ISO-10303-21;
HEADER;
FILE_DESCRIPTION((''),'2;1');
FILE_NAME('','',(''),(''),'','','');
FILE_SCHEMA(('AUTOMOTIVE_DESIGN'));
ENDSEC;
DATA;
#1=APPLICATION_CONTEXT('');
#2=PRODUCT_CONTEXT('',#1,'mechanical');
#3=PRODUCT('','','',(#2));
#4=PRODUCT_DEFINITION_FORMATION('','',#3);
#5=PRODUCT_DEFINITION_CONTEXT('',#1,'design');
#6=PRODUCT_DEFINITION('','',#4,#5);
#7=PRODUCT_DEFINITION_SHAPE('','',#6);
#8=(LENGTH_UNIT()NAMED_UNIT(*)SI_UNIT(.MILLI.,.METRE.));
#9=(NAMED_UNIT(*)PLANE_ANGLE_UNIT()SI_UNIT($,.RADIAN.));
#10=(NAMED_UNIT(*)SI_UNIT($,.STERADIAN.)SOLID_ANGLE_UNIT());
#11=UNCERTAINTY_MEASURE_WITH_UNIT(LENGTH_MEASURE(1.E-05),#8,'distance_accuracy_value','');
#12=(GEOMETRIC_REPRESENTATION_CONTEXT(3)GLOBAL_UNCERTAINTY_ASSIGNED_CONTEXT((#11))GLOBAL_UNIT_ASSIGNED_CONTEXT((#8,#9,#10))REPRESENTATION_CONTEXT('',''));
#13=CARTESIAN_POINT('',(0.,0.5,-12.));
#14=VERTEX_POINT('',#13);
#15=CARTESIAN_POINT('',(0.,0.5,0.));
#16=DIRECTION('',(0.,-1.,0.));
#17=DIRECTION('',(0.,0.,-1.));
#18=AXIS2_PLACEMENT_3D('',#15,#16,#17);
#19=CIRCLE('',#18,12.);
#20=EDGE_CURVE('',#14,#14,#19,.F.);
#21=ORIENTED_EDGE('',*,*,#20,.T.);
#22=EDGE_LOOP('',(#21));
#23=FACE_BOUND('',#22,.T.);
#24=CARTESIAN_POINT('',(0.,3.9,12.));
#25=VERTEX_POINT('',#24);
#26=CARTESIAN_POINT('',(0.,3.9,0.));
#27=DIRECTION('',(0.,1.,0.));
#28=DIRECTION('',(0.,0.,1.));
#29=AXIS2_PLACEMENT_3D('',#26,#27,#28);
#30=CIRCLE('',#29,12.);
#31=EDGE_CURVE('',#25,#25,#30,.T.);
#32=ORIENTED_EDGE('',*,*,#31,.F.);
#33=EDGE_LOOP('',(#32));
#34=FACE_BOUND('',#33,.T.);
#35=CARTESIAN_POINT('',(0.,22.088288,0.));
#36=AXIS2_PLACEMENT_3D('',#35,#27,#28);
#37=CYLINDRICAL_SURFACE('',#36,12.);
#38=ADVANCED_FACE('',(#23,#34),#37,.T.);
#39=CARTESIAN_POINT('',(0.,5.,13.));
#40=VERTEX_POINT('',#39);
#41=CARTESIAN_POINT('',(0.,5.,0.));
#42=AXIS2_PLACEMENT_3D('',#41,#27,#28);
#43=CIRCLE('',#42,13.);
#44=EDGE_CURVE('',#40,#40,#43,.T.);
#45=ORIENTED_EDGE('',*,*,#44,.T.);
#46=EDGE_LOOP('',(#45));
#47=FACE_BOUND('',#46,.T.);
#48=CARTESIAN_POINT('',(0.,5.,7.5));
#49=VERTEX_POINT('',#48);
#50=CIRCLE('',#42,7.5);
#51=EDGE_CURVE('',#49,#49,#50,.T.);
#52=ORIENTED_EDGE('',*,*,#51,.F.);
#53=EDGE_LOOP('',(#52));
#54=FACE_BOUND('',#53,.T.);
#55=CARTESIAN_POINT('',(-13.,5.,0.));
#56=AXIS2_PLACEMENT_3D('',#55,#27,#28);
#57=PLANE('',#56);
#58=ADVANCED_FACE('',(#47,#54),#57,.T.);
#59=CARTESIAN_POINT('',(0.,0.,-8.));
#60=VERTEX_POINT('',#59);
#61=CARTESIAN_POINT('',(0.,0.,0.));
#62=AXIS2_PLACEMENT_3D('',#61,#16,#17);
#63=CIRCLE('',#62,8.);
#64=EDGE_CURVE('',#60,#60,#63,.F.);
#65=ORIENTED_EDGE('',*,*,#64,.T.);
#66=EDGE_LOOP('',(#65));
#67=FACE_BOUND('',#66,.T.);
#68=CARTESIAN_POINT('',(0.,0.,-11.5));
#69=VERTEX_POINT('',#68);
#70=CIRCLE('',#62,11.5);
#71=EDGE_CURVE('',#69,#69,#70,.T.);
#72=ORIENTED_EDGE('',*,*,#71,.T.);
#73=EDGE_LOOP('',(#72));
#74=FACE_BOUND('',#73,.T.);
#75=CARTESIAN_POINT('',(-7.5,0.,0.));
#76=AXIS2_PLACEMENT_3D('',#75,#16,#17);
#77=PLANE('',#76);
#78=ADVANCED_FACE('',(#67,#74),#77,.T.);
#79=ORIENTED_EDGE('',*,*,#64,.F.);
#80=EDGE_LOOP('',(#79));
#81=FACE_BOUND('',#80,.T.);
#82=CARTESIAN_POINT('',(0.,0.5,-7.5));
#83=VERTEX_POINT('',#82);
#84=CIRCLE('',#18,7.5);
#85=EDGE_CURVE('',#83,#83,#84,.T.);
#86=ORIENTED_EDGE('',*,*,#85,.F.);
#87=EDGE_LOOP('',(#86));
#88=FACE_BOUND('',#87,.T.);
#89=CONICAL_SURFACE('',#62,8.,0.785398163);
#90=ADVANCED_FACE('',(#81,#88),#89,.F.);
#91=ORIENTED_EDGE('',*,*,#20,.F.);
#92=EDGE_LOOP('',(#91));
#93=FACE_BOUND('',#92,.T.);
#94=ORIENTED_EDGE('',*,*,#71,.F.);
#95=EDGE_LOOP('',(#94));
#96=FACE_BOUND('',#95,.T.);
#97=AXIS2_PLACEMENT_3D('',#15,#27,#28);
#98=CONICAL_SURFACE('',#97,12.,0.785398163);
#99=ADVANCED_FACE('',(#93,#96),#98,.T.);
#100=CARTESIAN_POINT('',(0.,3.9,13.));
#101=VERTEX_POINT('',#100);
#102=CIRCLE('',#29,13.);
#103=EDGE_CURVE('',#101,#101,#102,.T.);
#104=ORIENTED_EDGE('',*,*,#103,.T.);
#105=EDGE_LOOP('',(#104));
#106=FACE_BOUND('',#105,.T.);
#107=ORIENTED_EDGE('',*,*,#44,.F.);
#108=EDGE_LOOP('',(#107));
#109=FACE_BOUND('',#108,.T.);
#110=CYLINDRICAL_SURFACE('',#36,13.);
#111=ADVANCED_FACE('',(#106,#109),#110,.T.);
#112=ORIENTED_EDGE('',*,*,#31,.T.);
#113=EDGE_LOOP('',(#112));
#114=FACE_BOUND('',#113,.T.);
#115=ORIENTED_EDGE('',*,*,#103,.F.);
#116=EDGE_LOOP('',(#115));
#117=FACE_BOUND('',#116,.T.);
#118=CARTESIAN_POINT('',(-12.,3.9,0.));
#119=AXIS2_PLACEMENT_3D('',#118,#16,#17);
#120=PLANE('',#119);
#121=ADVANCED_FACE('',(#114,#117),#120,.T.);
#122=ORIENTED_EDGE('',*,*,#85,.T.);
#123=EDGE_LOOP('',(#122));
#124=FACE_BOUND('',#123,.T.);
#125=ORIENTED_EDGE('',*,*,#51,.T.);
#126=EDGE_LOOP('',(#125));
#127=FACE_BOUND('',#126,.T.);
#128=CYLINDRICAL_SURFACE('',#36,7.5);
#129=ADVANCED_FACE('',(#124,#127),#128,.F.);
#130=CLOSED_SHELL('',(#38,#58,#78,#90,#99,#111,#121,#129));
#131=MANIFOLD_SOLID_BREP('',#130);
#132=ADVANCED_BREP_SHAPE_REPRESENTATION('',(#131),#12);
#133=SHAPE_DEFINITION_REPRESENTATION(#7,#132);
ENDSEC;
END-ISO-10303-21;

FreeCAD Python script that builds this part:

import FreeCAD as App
import Part
import Sketcher

V = App.Vector


def edges_at(feature, points):
    """Names of the edges that pass closest to the given points."""
    edges = feature.Shape.Edges
    near = lambda p: min(range(len(edges)), key=lambda i: edges[i].distToShape(Part.Vertex(*p))[0])
    return sorted({f"Edge{near(p) + 1}" for p in points})

doc = App.newDocument("Part")
body = doc.addObject("PartDesign::Body", "Body")

# Sketch on XY plane
sketch1 = body.newObject("Sketcher::SketchObject", "Sketch")
sketch1.AttachmentSupport = (doc.getObject("XY_Plane"), [""])
sketch1.MapMode = "FlatFace"
sketch1.addGeometry([
    Part.LineSegment(V(-12, 0, 0), V(-7.5, 0, 0)),  # 0
    Part.LineSegment(V(-7.5, 0, 0), V(-7.5, 5, 0)),  # 1
    Part.LineSegment(V(-7.5, 5, 0), V(-13, 5, 0)),  # 2
    Part.LineSegment(V(-13, 5, 0), V(-13, 3.9, 0)),  # 3
    Part.LineSegment(V(-13, 3.9, 0), V(-12, 3.9, 0)),  # 4
    Part.LineSegment(V(-12, 3.9, 0), V(-12, 0, 0)),  # 5
], False)
sketch1.addConstraint([
    Sketcher.Constraint("Coincident", 0, 2, 1, 1),
    Sketcher.Constraint("Coincident", 1, 2, 2, 1),
    Sketcher.Constraint("Coincident", 2, 2, 3, 1),
    Sketcher.Constraint("Coincident", 3, 2, 4, 1),
    Sketcher.Constraint("Coincident", 4, 2, 5, 1),
    Sketcher.Constraint("Coincident", 5, 2, 0, 1),
    Sketcher.Constraint("Horizontal", 0),
    Sketcher.Constraint("Vertical", 1),
    Sketcher.Constraint("Horizontal", 2),
    Sketcher.Constraint("Vertical", 3),
    Sketcher.Constraint("Horizontal", 4),
    Sketcher.Constraint("Vertical", 5),
    Sketcher.Constraint("PointOnObject", 0, 2, -1),
    Sketcher.Constraint("DistanceX", 4, 1, 4, 2, 1.0),
    Sketcher.Constraint("DistanceY", 1, 1, 1, 2, 5.0),
    Sketcher.Constraint("DistanceX", 0, 1, 0, 2, 4.5),
    Sketcher.Constraint("DistanceY", 3, 2, 3, 1, 1.1),
    Sketcher.Constraint("DistanceX", 2, 2, -1, 1, 13.0),
])
revolution = body.newObject("PartDesign::Revolution", "Revolution")
revolution.Profile = sketch1
revolution.ReferenceAxis = (sketch1, ["V_Axis"])
revolution.Angle = 360
doc.recompute()

chamfer = body.newObject("PartDesign::Chamfer", "Chamfer")
chamfer.Base = (revolution, edges_at(revolution, [(0, 0, -12), (0, 0, -7.5)]))
chamfer.Size = 0.5

doc.recompute()
